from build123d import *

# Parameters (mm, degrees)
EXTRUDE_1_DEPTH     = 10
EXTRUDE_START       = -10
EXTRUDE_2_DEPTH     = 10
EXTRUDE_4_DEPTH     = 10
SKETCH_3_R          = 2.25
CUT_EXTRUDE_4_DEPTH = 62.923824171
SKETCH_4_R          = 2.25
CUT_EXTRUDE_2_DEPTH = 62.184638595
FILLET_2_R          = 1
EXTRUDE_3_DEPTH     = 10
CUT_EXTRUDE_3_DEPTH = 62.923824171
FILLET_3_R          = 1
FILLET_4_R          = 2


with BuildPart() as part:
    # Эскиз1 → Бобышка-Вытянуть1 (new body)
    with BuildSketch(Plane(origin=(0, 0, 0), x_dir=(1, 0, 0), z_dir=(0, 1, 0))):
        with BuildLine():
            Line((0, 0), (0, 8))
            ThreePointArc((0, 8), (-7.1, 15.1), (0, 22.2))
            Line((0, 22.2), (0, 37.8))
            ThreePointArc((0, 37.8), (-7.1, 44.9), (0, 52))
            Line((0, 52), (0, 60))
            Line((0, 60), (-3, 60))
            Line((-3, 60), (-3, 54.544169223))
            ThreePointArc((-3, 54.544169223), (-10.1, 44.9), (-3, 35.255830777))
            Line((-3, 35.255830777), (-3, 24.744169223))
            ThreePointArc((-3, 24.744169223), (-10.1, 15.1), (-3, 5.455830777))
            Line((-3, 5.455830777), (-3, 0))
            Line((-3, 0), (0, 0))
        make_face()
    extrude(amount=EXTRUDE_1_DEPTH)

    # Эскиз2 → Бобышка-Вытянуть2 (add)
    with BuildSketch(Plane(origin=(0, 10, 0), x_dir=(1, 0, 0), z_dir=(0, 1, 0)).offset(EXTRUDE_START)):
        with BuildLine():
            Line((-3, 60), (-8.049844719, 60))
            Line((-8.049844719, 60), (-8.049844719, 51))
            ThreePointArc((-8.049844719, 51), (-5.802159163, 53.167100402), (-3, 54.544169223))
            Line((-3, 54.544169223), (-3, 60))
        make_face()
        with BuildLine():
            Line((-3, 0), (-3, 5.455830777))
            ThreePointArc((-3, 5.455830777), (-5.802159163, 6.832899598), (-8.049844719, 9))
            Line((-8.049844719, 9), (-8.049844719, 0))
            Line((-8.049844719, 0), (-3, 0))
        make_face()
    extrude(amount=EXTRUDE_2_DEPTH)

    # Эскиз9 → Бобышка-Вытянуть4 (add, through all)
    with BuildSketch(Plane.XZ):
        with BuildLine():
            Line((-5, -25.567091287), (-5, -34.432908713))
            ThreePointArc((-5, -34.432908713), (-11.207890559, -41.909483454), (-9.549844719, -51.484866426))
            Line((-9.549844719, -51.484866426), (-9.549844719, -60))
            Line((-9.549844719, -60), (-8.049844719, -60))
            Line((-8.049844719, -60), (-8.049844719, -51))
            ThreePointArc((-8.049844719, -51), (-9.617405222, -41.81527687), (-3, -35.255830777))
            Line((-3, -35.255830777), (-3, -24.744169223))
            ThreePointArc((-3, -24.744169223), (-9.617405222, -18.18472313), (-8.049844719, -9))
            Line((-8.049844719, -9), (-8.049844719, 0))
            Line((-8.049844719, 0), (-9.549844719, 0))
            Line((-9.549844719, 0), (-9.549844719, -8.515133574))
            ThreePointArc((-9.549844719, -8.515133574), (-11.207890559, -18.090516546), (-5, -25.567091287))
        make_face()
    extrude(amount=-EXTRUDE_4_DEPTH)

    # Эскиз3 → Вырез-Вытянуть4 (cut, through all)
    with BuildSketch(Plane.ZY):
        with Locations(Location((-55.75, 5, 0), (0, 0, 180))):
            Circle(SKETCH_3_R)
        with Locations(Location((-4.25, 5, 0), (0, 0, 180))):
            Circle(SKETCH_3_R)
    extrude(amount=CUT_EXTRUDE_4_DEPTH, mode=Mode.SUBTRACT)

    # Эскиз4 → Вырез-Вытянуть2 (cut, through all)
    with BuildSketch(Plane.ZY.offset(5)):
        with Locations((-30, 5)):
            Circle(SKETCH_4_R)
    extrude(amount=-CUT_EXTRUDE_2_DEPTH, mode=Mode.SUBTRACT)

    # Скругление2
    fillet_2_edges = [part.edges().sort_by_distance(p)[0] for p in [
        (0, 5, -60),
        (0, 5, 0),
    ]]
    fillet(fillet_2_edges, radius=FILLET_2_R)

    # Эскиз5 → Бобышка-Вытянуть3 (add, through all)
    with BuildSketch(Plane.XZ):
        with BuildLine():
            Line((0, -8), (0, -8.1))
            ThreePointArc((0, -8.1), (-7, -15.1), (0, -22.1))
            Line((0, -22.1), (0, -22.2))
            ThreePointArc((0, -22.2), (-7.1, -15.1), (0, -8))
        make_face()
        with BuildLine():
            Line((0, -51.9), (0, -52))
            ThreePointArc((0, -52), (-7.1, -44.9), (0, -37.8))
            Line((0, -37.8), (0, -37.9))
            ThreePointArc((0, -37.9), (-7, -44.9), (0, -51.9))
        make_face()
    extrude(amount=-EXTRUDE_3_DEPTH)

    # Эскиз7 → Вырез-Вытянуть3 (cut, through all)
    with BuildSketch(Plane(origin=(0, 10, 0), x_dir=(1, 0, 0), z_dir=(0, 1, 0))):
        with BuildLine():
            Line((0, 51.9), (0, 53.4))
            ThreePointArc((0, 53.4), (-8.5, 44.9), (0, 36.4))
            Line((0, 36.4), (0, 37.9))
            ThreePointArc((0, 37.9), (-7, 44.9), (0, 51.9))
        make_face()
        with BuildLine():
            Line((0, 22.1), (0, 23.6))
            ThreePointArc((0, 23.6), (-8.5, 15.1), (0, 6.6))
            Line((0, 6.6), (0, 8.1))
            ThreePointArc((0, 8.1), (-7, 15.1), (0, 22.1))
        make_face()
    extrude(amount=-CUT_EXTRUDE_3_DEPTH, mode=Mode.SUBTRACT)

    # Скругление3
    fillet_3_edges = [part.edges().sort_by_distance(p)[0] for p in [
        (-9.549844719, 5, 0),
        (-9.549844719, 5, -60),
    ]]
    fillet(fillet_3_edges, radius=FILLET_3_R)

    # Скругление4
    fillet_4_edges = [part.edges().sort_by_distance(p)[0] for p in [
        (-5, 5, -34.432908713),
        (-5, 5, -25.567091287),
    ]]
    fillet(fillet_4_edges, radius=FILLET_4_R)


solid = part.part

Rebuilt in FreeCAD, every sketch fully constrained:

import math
import FreeCAD as App
import Part
import Sketcher


def edges_at(feature, points):
    """Names of the edges that pass closest to the given points."""
    edges = feature.Shape.Edges
    near = lambda p: min(range(len(edges)), key=lambda i: edges[i].distToShape(Part.Vertex(*p))[0])
    return sorted({f"Edge{near(p) + 1}" for p in points})

doc = App.newDocument("Part")
body = doc.addObject("PartDesign::Body", "Body")

sketch1 = body.newObject("Sketcher::SketchObject", "Sketch")
sketch1.AttachmentSupport = (doc.getObject("XZ_Plane"), [""])
sketch1.MapMode = "FlatFace"
sketch1.addGeometry(Part.LineSegment(App.Vector(0, 0, 0), App.Vector(0, -8, 0)), False)
sketch1.addGeometry(Part.ArcOfCircle(Part.Circle(App.Vector(0, -15.1, 0), App.Vector(0, 0, 1), 7.1), math.radians(90), math.radians(270)), False)
sketch1.addGeometry(Part.LineSegment(App.Vector(0, -22.2, 0), App.Vector(0, -37.8, 0)), False)
sketch1.addGeometry(Part.ArcOfCircle(Part.Circle(App.Vector(0, -44.9, 0), App.Vector(0, 0, 1), 7.1), math.radians(90), math.radians(270)), False)
sketch1.addGeometry(Part.LineSegment(App.Vector(0, -52, 0), App.Vector(0, -60, 0)), False)
sketch1.addGeometry(Part.LineSegment(App.Vector(0, -60, 0), App.Vector(-3, -60, 0)), False)
sketch1.addGeometry(Part.LineSegment(App.Vector(-3, -60, 0), App.Vector(-3, -54.5, 0)), False)
sketch1.addGeometry(Part.ArcOfCircle(Part.Circle(App.Vector(0, -44.9, 0), App.Vector(0, 0, 1), 10.1), math.radians(107), math.radians(253)), False)
sketch1.addGeometry(Part.LineSegment(App.Vector(-3, -35.3, 0), App.Vector(-3, -24.7, 0)), False)
sketch1.addGeometry(Part.ArcOfCircle(Part.Circle(App.Vector(0, -15.1, 0), App.Vector(0, 0, 1), 10.1), math.radians(107), math.radians(253)), False)
sketch1.addGeometry(Part.LineSegment(App.Vector(-3, -5.5, 0), App.Vector(-3, 0, 0)), False)
sketch1.addGeometry(Part.LineSegment(App.Vector(-3, 0, 0), App.Vector(0, 0, 0)), False)
sketch1.addConstraint(Sketcher.Constraint("Coincident", 0, 2, 1, 1))
sketch1.addConstraint(Sketcher.Constraint("Coincident", 1, 2, 2, 1))
sketch1.addConstraint(Sketcher.Constraint("Coincident", 2, 2, 3, 1))
sketch1.addConstraint(Sketcher.Constraint("Coincident", 3, 2, 4, 1))
sketch1.addConstraint(Sketcher.Constraint("Coincident", 4, 2, 5, 1))
sketch1.addConstraint(Sketcher.Constraint("Coincident", 5, 2, 6, 1))
sketch1.addConstraint(Sketcher.Constraint("Coincident", 6, 2, 7, 2))
sketch1.addConstraint(Sketcher.Constraint("Coincident", 7, 1, 8, 1))
sketch1.addConstraint(Sketcher.Constraint("Coincident", 8, 2, 9, 2))
sketch1.addConstraint(Sketcher.Constraint("Coincident", 9, 1, 10, 1))
sketch1.addConstraint(Sketcher.Constraint("Coincident", 10, 2, 11, 1))
sketch1.addConstraint(Sketcher.Constraint("Coincident", 11, 2, 0, 1))
sketch1.addConstraint(Sketcher.Constraint("Vertical", 0))
sketch1.addConstraint(Sketcher.Constraint("Vertical", 2))
sketch1.addConstraint(Sketcher.Constraint("Vertical", 4))
sketch1.addConstraint(Sketcher.Constraint("Horizontal", 5))
sketch1.addConstraint(Sketcher.Constraint("Vertical", 6))
sketch1.addConstraint(Sketcher.Constraint("Vertical", 8))
sketch1.addConstraint(Sketcher.Constraint("Vertical", 10))
sketch1.addConstraint(Sketcher.Constraint("Horizontal", 11))
sketch1.addConstraint(Sketcher.Constraint("Coincident", 11, 2, -1, 1))
sketch1.addConstraint(Sketcher.Constraint("Coincident", 7, 3, 3, 3))
sketch1.addConstraint(Sketcher.Constraint("Coincident", 9, 3, 1, 3))
sketch1.addConstraint(Sketcher.Constraint("Equal", 1, 3))
sketch1.addConstraint(Sketcher.Constraint("Equal", 7, 9))
sketch1.addConstraint(Sketcher.Constraint("PointOnObject", 1, 3, -2))
sketch1.addConstraint(Sketcher.Constraint("PointOnObject", 3, 3, -2))
sketch1.addConstraint(Sketcher.Constraint("PointOnObject", 1, 2, -2))
sketch1.addConstraint(Sketcher.Constraint("PointOnObject", 3, 2, -2))
sketch1.addConstraint(Sketcher.Constraint("Vertical", 6, 2, 7, 1))
sketch1.addConstraint(Sketcher.Constraint("Vertical", 8, 2, 9, 1))
sketch1.addConstraint(Sketcher.Constraint("Equal", 0, 4))
sketch1.addConstraint(Sketcher.Constraint("Radius", 1, 7.1))
sketch1.addConstraint(Sketcher.Constraint("Radius", 7, 10.1))
sketch1.addConstraint(Sketcher.Constraint("DistanceX", 5, 2, 5, 1, 3.0))
sketch1.addConstraint(Sketcher.Constraint("DistanceY", 0, 2, 0, 1, 8.0))
sketch1.addConstraint(Sketcher.Constraint("DistanceY", 2, 2, 2, 1, 15.6))
pad1 = body.newObject("PartDesign::Pad", "Pad")
pad1.Profile = sketch1
pad1.Length = 10
pad1.Reversed = True

sketch2 = body.newObject("Sketcher::SketchObject", "Sketch001")
sketch2.AttachmentSupport = (doc.getObject("XZ_Plane"), [""])
sketch2.MapMode = "FlatFace"
sketch2.addGeometry(Part.LineSegment(App.Vector(-3, -60, 0), App.Vector(-8, -60, 0)), False)
sketch2.addGeometry(Part.LineSegment(App.Vector(-8, -60, 0), App.Vector(-8, -51, 0)), False)
sketch2.addGeometry(Part.ArcOfCircle(Part.Circle(App.Vector(0, -45, 0), App.Vector(0, 0, 1), 10), math.radians(-143), math.radians(-107)), False)
sketch2.addGeometry(Part.LineSegment(App.Vector(-3, -55, 0), App.Vector(-3, -60, 0)), False)
sketch2.addGeometry(Part.LineSegment(App.Vector(-3, 0, 0), App.Vector(-3, -5, 0)), False)
sketch2.addGeometry(Part.ArcOfCircle(Part.Circle(App.Vector(0, -15, 0), App.Vector(0, 0, 1), 10), math.radians(107), math.radians(143)), False)
sketch2.addGeometry(Part.LineSegment(App.Vector(-8, -9, 0), App.Vector(-8, 0, 0)), False)
sketch2.addGeometry(Part.LineSegment(App.Vector(-8, 0, 0), App.Vector(-3, 0, 0)), False)
sketch2.addConstraint(Sketcher.Constraint("Coincident", 0, 2, 1, 1))
sketch2.addConstraint(Sketcher.Constraint("Coincident", 1, 2, 2, 1))
sketch2.addConstraint(Sketcher.Constraint("Coincident", 2, 2, 3, 1))
sketch2.addConstraint(Sketcher.Constraint("Coincident", 3, 2, 0, 1))
sketch2.addConstraint(Sketcher.Constraint("Coincident", 4, 2, 5, 1))
sketch2.addConstraint(Sketcher.Constraint("Coincident", 5, 2, 6, 1))
sketch2.addConstraint(Sketcher.Constraint("Coincident", 6, 2, 7, 1))
sketch2.addConstraint(Sketcher.Constraint("Coincident", 7, 2, 4, 1))
sketch2.addConstraint(Sketcher.Constraint("Horizontal", 0))
sketch2.addConstraint(Sketcher.Constraint("Vertical", 1))
sketch2.addConstraint(Sketcher.Constraint("Vertical", 3))
sketch2.addConstraint(Sketcher.Constraint("Vertical", 4))
sketch2.addConstraint(Sketcher.Constraint("Vertical", 6))
sketch2.addConstraint(Sketcher.Constraint("Horizontal", 7))
sketch2.addConstraint(Sketcher.Constraint("Equal", 2, 5))
sketch2.addConstraint(Sketcher.Constraint("PointOnObject", 2, 3, -2))
sketch2.addConstraint(Sketcher.Constraint("PointOnObject", 5, 3, -2))
sketch2.addConstraint(Sketcher.Constraint("PointOnObject", 6, 2, -1))
sketch2.addConstraint(Sketcher.Constraint("Vertical", 3, 2, 4, 2))
sketch2.addConstraint(Sketcher.Constraint("Vertical", 1, 2, 5, 2))
sketch2.addConstraint(Sketcher.Constraint("Equal", 3, 4))
sketch2.addConstraint(Sketcher.Constraint("Radius", 2, 10.1))
sketch2.addConstraint(Sketcher.Constraint("DistanceY", 1, 1, 1, 2, 9.0))
sketch2.addConstraint(Sketcher.Constraint("DistanceY", 0, 2, -1, 1, 60.0))
sketch2.addConstraint(Sketcher.Constraint("DistanceX", 2, 2, -1, 1, 3.0))
sketch2.addConstraint(Sketcher.Constraint("DistanceY", 2, 3, -1, 1, 44.9))
pad2 = body.newObject("PartDesign::Pad", "Pad001")
pad2.Profile = sketch2
pad2.Length = 10
pad2.Reversed = True

sketch3 = body.newObject("Sketcher::SketchObject", "Sketch002")
sketch3.AttachmentSupport = (doc.getObject("XZ_Plane"), [""])
sketch3.MapMode = "FlatFace"
sketch3.addGeometry(Part.LineSegment(App.Vector(-5, -25.6, 0), App.Vector(-5, -34.4, 0)), False)
sketch3.addGeometry(Part.ArcOfCircle(Part.Circle(App.Vector(0, -44.9, 0), App.Vector(0, 0, 1), 11.6), math.radians(116), math.radians(215)), False)
sketch3.addGeometry(Part.LineSegment(App.Vector(-9.5, -51.5, 0), App.Vector(-9.5, -60, 0)), False)
sketch3.addGeometry(Part.LineSegment(App.Vector(-9.5, -60, 0), App.Vector(-8, -60, 0)), False)
sketch3.addGeometry(Part.LineSegment(App.Vector(-8, -60, 0), App.Vector(-8, -51, 0)), False)
sketch3.addGeometry(Part.ArcOfCircle(Part.Circle(App.Vector(0, -44.9, 0), App.Vector(0, 0, 1), 10.1), math.radians(107), math.radians(217)), False)
sketch3.addGeometry(Part.LineSegment(App.Vector(-3, -35.3, 0), App.Vector(-3, -24.7, 0)), False)
sketch3.addGeometry(Part.ArcOfCircle(Part.Circle(App.Vector(0, -15.1, 0), App.Vector(0, 0, 1), 10.1), math.radians(143), math.radians(253)), False)
sketch3.addGeometry(Part.LineSegment(App.Vector(-8, -9, 0), App.Vector(-8, 0, 0)), False)
sketch3.addGeometry(Part.LineSegment(App.Vector(-8, 0, 0), App.Vector(-9.5, 0, 0)), False)
sketch3.addGeometry(Part.LineSegment(App.Vector(-9.5, 0, 0), App.Vector(-9.5, -8.5, 0)), False)
sketch3.addGeometry(Part.ArcOfCircle(Part.Circle(App.Vector(0, -15.1, 0), App.Vector(0, 0, 1), 11.6), math.radians(145), math.radians(244)), False)
sketch3.addConstraint(Sketcher.Constraint("Coincident", 0, 2, 1, 1))
sketch3.addConstraint(Sketcher.Constraint("Coincident", 1, 2, 2, 1))
sketch3.addConstraint(Sketcher.Constraint("Coincident", 2, 2, 3, 1))
sketch3.addConstraint(Sketcher.Constraint("Coincident", 3, 2, 4, 1))
sketch3.addConstraint(Sketcher.Constraint("Coincident", 4, 2, 5, 2))
sketch3.addConstraint(Sketcher.Constraint("Coincident", 5, 1, 6, 1))
sketch3.addConstraint(Sketcher.Constraint("Coincident", 6, 2, 7, 2))
sketch3.addConstraint(Sketcher.Constraint("Coincident", 7, 1, 8, 1))
sketch3.addConstraint(Sketcher.Constraint("Coincident", 8, 2, 9, 1))
sketch3.addConstraint(Sketcher.Constraint("Coincident", 9, 2, 10, 1))
sketch3.addConstraint(Sketcher.Constraint("Coincident", 10, 2, 11, 1))
sketch3.addConstraint(Sketcher.Constraint("Coincident", 11, 2, 0, 1))
sketch3.addConstraint(Sketcher.Constraint("Vertical", 0))
sketch3.addConstraint(Sketcher.Constraint("Vertical", 2))
sketch3.addConstraint(Sketcher.Constraint("Horizontal", 3))
sketch3.addConstraint(Sketcher.Constraint("Vertical", 4))
sketch3.addConstraint(Sketcher.Constraint("Vertical", 6))
sketch3.addConstraint(Sketcher.Constraint("Vertical", 8))
sketch3.addConstraint(Sketcher.Constraint("Horizontal", 9))
sketch3.addConstraint(Sketcher.Constraint("Vertical", 10))
sketch3.addConstraint(Sketcher.Constraint("Coincident", 5, 3, 1, 3))
sketch3.addConstraint(Sketcher.Constraint("Coincident", 11, 3, 7, 3))
sketch3.addConstraint(Sketcher.Constraint("Equal", 5, 7))
sketch3.addConstraint(Sketcher.Constraint("Equal", 1, 11))
sketch3.addConstraint(Sketcher.Constraint("PointOnObject", 1, 3, -2))
sketch3.addConstraint(Sketcher.Constraint("PointOnObject", 7, 3, -2))
sketch3.addConstraint(Sketcher.Constraint("PointOnObject", 8, 2, -1))
sketch3.addConstraint(Sketcher.Constraint("Vertical", 4, 2, 7, 1))
sketch3.addConstraint(Sketcher.Constraint("Vertical", 2, 2, 9, 2))
sketch3.addConstraint(Sketcher.Constraint("Equal", 4, 8))
sketch3.addConstraint(Sketcher.Constraint("Radius", 1, 11.6))
sketch3.addConstraint(Sketcher.Constraint("Radius", 5, 10.1))
sketch3.addConstraint(Sketcher.Constraint("DistanceY", 4, 1, 4, 2, 9.0))
sketch3.addConstraint(Sketcher.Constraint("DistanceX", 3, 1, 3, 2, 1.5))
sketch3.addConstraint(Sketcher.Constraint("DistanceX", 0, 2, -1, 1, 5.0))
sketch3.addConstraint(Sketcher.Constraint("DistanceY", 2, 2, -1, 1, 60.0))
sketch3.addConstraint(Sketcher.Constraint("DistanceX", 5, 1, -1, 1, 3.0))
sketch3.addConstraint(Sketcher.Constraint("DistanceY", 1, 3, -1, 1, 44.9))
pad3 = body.newObject("PartDesign::Pad", "Pad002")
pad3.Profile = sketch3
pad3.Length = 10
pad3.Reversed = True

sketch4 = body.newObject("Sketcher::SketchObject", "Sketch003")
sketch4.AttachmentSupport = (doc.getObject("YZ_Plane"), [""])
sketch4.MapMode = "FlatFace"
sketch4.addGeometry(Part.Circle(App.Vector(5, -55.8, 0), App.Vector(0, 0, 1), 2.2), False)
sketch4.addGeometry(Part.Circle(App.Vector(5, -4.2, 0), App.Vector(0, 0, 1), 2.2), False)
sketch4.addConstraint(Sketcher.Constraint("Equal", 0, 1))
sketch4.addConstraint(Sketcher.Constraint("Vertical", 0, 3, 1, 3))
sketch4.addConstraint(Sketcher.Constraint("Diameter", 0, 4.5))
sketch4.addConstraint(Sketcher.Constraint("DistanceX", -1, 1, 0, 3, 5.0))
sketch4.addConstraint(Sketcher.Constraint("DistanceY", 0, 3, 1, 3, 51.5))
sketch4.addConstraint(Sketcher.Constraint("DistanceY", 0, 3, -1, 1, 55.75))
pocket1 = body.newObject("PartDesign::Pocket", "Pocket")
pocket1.Profile = sketch4
pocket1.Type = "ThroughAll"

sketch5 = body.newObject("Sketcher::SketchObject", "Sketch004")
sketch5.AttachmentSupport = (doc.getObject("YZ_Plane"), [""])
sketch5.MapMode = "FlatFace"
sketch5.AttachmentOffset = App.Placement(App.Vector(0, 0, -5), App.Rotation())
sketch5.addGeometry(Part.Circle(App.Vector(5, -30, 0), App.Vector(0, 0, 1), 2.2), False)
sketch5.addConstraint(Sketcher.Constraint("Diameter", 0, 4.5))
sketch5.addConstraint(Sketcher.Constraint("DistanceX", -1, 1, 0, 3, 5.0))
sketch5.addConstraint(Sketcher.Constraint("DistanceY", 0, 3, -1, 1, 30.0))
pocket2 = body.newObject("PartDesign::Pocket", "Pocket001")
pocket2.Profile = sketch5
pocket2.Type = "ThroughAll"
pocket2.Reversed = True
doc.recompute()

fillet = body.newObject("PartDesign::Fillet", "Fillet")
fillet.Base = (pocket2, edges_at(pocket2, [(0, 5, -60), (0, 5, 0)]))
fillet.Radius = 1

sketch6 = body.newObject("Sketcher::SketchObject", "Sketch005")
sketch6.AttachmentSupport = (doc.getObject("XZ_Plane"), [""])
sketch6.MapMode = "FlatFace"
sketch6.addGeometry(Part.LineSegment(App.Vector(0, -8.1, 0), App.Vector(0, -8, 0)), False)
sketch6.addGeometry(Part.ArcOfCircle(Part.Circle(App.Vector(0, -15.1, 0), App.Vector(0, 0, 1), 7.1), math.radians(90), math.radians(270)), False)
sketch6.addGeometry(Part.LineSegment(App.Vector(0, -22.2, 0), App.Vector(0, -22.1, 0)), False)
sketch6.addGeometry(Part.ArcOfCircle(Part.Circle(App.Vector(0, -15.1, 0), App.Vector(0, 0, 1), 7), math.radians(90), math.radians(270)), False)
sketch6.addGeometry(Part.LineSegment(App.Vector(0, -52, 0), App.Vector(0, -51.9, 0)), False)
sketch6.addGeometry(Part.ArcOfCircle(Part.Circle(App.Vector(0, -44.9, 0), App.Vector(0, 0, 1), 7), math.radians(90), math.radians(270)), False)
sketch6.addGeometry(Part.LineSegment(App.Vector(0, -37.9, 0), App.Vector(0, -37.8, 0)), False)
sketch6.addGeometry(Part.ArcOfCircle(Part.Circle(App.Vector(0, -44.9, 0), App.Vector(0, 0, 1), 7.1), math.radians(90), math.radians(270)), False)
sketch6.addConstraint(Sketcher.Constraint("Coincident", 0, 2, 1, 1))
sketch6.addConstraint(Sketcher.Constraint("Coincident", 1, 2, 2, 1))
sketch6.addConstraint(Sketcher.Constraint("Coincident", 2, 2, 3, 2))
sketch6.addConstraint(Sketcher.Constraint("Coincident", 3, 1, 0, 1))
sketch6.addConstraint(Sketcher.Constraint("Coincident", 4, 2, 5, 2))
sketch6.addConstraint(Sketcher.Constraint("Coincident", 5, 1, 6, 1))
sketch6.addConstraint(Sketcher.Constraint("Coincident", 6, 2, 7, 1))
sketch6.addConstraint(Sketcher.Constraint("Coincident", 7, 2, 4, 1))
sketch6.addConstraint(Sketcher.Constraint("Vertical", 0))
sketch6.addConstraint(Sketcher.Constraint("Vertical", 2))
sketch6.addConstraint(Sketcher.Constraint("Vertical", 4))
sketch6.addConstraint(Sketcher.Constraint("Vertical", 6))
sketch6.addConstraint(Sketcher.Constraint("Coincident", 3, 3, 1, 3))
sketch6.addConstraint(Sketcher.Constraint("Coincident", 7, 3, 5, 3))
sketch6.addConstraint(Sketcher.Constraint("Equal", 3, 5))
sketch6.addConstraint(Sketcher.Constraint("Equal", 1, 7))
sketch6.addConstraint(Sketcher.Constraint("PointOnObject", 1, 3, -2))
sketch6.addConstraint(Sketcher.Constraint("PointOnObject", 5, 3, -2))
sketch6.addConstraint(Sketcher.Constraint("PointOnObject", 0, 2, -2))
sketch6.addConstraint(Sketcher.Constraint("PointOnObject", 1, 2, -2))
sketch6.addConstraint(Sketcher.Constraint("PointOnObject", 4, 2, -2))
sketch6.addConstraint(Sketcher.Constraint("PointOnObject", 5, 1, -2))
sketch6.addConstraint(Sketcher.Constraint("Radius", 3, 7.0))
sketch6.addConstraint(Sketcher.Constraint("Radius", 1, 7.1))
sketch6.addConstraint(Sketcher.Constraint("DistanceY", 0, 2, -1, 1, 8.0))
sketch6.addConstraint(Sketcher.Constraint("DistanceY", 7, 2, -1, 1, 52.0))
pad4 = body.newObject("PartDesign::Pad", "Pad003")
pad4.Profile = sketch6
pad4.Type = "UpToLast"
pad4.Reversed = True

sketch7 = body.newObject("Sketcher::SketchObject", "Sketch006")
sketch7.AttachmentSupport = (doc.getObject("XZ_Plane"), [""])
sketch7.MapMode = "FlatFace"
sketch7.AttachmentOffset = App.Placement(App.Vector(0, 0, -10), App.Rotation())
sketch7.addGeometry(Part.LineSegment(App.Vector(0, -51.9, 0), App.Vector(0, -53.4, 0)), False)
sketch7.addGeometry(Part.ArcOfCircle(Part.Circle(App.Vector(0, -44.9, 0), App.Vector(0, 0, 1), 8.5), math.radians(90), math.radians(270)), False)
sketch7.addGeometry(Part.LineSegment(App.Vector(0, -36.4, 0), App.Vector(0, -37.9, 0)), False)
sketch7.addGeometry(Part.ArcOfCircle(Part.Circle(App.Vector(0, -44.9, 0), App.Vector(0, 0, 1), 7), math.radians(90), math.radians(270)), False)
sketch7.addGeometry(Part.LineSegment(App.Vector(0, -22.1, 0), App.Vector(0, -23.6, 0)), False)
sketch7.addGeometry(Part.ArcOfCircle(Part.Circle(App.Vector(0, -15.1, 0), App.Vector(0, 0, 1), 8.5), math.radians(90), math.radians(270)), False)
sketch7.addGeometry(Part.LineSegment(App.Vector(0, -6.6, 0), App.Vector(0, -8.1, 0)), False)
sketch7.addGeometry(Part.ArcOfCircle(Part.Circle(App.Vector(0, -15.1, 0), App.Vector(0, 0, 1), 7), math.radians(90), math.radians(270)), False)
sketch7.addConstraint(Sketcher.Constraint("Coincident", 0, 2, 1, 2))
sketch7.addConstraint(Sketcher.Constraint("Coincident", 1, 1, 2, 1))
sketch7.addConstraint(Sketcher.Constraint("Coincident", 2, 2, 3, 1))
sketch7.addConstraint(Sketcher.Constraint("Coincident", 3, 2, 0, 1))
sketch7.addConstraint(Sketcher.Constraint("Coincident", 4, 2, 5, 2))
sketch7.addConstraint(Sketcher.Constraint("Coincident", 5, 1, 6, 1))
sketch7.addConstraint(Sketcher.Constraint("Coincident", 6, 2, 7, 1))
sketch7.addConstraint(Sketcher.Constraint("Coincident", 7, 2, 4, 1))
sketch7.addConstraint(Sketcher.Constraint("Vertical", 0))
sketch7.addConstraint(Sketcher.Constraint("Vertical", 2))
sketch7.addConstraint(Sketcher.Constraint("Vertical", 4))
sketch7.addConstraint(Sketcher.Constraint("Vertical", 6))
sketch7.addConstraint(Sketcher.Constraint("Coincident", 3, 3, 1, 3))
sketch7.addConstraint(Sketcher.Constraint("Coincident", 7, 3, 5, 3))
sketch7.addConstraint(Sketcher.Constraint("Equal", 1, 5))
sketch7.addConstraint(Sketcher.Constraint("Equal", 3, 7))
sketch7.addConstraint(Sketcher.Constraint("PointOnObject", 1, 3, -2))
sketch7.addConstraint(Sketcher.Constraint("PointOnObject", 5, 3, -2))
sketch7.addConstraint(Sketcher.Constraint("PointOnObject", 0, 2, -2))
sketch7.addConstraint(Sketcher.Constraint("PointOnObject", 1, 1, -2))
sketch7.addConstraint(Sketcher.Constraint("PointOnObject", 4, 2, -2))
sketch7.addConstraint(Sketcher.Constraint("PointOnObject", 5, 1, -2))
sketch7.addConstraint(Sketcher.Constraint("Radius", 3, 7.0))
sketch7.addConstraint(Sketcher.Constraint("Radius", 1, 8.5))
sketch7.addConstraint(Sketcher.Constraint("DistanceY", 1, 3, -1, 1, 44.9))
sketch7.addConstraint(Sketcher.Constraint("DistanceY", 5, 3, -1, 1, 15.1))
pocket3 = body.newObject("PartDesign::Pocket", "Pocket002")
pocket3.Profile = sketch7
pocket3.Type = "ThroughAll"
pocket3.Reversed = True
doc.recompute()

fillet2 = body.newObject("PartDesign::Fillet", "Fillet001")
fillet2.Base = (pocket3, edges_at(pocket3, [(-9.55, 5, 0), (-9.55, 5, -60)]))
fillet2.Radius = 1
doc.recompute()

fillet3 = body.newObject("PartDesign::Fillet", "Fillet002")
fillet3.Base = (fillet2, edges_at(fillet2, [(-5, 5, -34.433), (-5, 5, -25.567)]))
fillet3.Radius = 2

doc.recompute()
